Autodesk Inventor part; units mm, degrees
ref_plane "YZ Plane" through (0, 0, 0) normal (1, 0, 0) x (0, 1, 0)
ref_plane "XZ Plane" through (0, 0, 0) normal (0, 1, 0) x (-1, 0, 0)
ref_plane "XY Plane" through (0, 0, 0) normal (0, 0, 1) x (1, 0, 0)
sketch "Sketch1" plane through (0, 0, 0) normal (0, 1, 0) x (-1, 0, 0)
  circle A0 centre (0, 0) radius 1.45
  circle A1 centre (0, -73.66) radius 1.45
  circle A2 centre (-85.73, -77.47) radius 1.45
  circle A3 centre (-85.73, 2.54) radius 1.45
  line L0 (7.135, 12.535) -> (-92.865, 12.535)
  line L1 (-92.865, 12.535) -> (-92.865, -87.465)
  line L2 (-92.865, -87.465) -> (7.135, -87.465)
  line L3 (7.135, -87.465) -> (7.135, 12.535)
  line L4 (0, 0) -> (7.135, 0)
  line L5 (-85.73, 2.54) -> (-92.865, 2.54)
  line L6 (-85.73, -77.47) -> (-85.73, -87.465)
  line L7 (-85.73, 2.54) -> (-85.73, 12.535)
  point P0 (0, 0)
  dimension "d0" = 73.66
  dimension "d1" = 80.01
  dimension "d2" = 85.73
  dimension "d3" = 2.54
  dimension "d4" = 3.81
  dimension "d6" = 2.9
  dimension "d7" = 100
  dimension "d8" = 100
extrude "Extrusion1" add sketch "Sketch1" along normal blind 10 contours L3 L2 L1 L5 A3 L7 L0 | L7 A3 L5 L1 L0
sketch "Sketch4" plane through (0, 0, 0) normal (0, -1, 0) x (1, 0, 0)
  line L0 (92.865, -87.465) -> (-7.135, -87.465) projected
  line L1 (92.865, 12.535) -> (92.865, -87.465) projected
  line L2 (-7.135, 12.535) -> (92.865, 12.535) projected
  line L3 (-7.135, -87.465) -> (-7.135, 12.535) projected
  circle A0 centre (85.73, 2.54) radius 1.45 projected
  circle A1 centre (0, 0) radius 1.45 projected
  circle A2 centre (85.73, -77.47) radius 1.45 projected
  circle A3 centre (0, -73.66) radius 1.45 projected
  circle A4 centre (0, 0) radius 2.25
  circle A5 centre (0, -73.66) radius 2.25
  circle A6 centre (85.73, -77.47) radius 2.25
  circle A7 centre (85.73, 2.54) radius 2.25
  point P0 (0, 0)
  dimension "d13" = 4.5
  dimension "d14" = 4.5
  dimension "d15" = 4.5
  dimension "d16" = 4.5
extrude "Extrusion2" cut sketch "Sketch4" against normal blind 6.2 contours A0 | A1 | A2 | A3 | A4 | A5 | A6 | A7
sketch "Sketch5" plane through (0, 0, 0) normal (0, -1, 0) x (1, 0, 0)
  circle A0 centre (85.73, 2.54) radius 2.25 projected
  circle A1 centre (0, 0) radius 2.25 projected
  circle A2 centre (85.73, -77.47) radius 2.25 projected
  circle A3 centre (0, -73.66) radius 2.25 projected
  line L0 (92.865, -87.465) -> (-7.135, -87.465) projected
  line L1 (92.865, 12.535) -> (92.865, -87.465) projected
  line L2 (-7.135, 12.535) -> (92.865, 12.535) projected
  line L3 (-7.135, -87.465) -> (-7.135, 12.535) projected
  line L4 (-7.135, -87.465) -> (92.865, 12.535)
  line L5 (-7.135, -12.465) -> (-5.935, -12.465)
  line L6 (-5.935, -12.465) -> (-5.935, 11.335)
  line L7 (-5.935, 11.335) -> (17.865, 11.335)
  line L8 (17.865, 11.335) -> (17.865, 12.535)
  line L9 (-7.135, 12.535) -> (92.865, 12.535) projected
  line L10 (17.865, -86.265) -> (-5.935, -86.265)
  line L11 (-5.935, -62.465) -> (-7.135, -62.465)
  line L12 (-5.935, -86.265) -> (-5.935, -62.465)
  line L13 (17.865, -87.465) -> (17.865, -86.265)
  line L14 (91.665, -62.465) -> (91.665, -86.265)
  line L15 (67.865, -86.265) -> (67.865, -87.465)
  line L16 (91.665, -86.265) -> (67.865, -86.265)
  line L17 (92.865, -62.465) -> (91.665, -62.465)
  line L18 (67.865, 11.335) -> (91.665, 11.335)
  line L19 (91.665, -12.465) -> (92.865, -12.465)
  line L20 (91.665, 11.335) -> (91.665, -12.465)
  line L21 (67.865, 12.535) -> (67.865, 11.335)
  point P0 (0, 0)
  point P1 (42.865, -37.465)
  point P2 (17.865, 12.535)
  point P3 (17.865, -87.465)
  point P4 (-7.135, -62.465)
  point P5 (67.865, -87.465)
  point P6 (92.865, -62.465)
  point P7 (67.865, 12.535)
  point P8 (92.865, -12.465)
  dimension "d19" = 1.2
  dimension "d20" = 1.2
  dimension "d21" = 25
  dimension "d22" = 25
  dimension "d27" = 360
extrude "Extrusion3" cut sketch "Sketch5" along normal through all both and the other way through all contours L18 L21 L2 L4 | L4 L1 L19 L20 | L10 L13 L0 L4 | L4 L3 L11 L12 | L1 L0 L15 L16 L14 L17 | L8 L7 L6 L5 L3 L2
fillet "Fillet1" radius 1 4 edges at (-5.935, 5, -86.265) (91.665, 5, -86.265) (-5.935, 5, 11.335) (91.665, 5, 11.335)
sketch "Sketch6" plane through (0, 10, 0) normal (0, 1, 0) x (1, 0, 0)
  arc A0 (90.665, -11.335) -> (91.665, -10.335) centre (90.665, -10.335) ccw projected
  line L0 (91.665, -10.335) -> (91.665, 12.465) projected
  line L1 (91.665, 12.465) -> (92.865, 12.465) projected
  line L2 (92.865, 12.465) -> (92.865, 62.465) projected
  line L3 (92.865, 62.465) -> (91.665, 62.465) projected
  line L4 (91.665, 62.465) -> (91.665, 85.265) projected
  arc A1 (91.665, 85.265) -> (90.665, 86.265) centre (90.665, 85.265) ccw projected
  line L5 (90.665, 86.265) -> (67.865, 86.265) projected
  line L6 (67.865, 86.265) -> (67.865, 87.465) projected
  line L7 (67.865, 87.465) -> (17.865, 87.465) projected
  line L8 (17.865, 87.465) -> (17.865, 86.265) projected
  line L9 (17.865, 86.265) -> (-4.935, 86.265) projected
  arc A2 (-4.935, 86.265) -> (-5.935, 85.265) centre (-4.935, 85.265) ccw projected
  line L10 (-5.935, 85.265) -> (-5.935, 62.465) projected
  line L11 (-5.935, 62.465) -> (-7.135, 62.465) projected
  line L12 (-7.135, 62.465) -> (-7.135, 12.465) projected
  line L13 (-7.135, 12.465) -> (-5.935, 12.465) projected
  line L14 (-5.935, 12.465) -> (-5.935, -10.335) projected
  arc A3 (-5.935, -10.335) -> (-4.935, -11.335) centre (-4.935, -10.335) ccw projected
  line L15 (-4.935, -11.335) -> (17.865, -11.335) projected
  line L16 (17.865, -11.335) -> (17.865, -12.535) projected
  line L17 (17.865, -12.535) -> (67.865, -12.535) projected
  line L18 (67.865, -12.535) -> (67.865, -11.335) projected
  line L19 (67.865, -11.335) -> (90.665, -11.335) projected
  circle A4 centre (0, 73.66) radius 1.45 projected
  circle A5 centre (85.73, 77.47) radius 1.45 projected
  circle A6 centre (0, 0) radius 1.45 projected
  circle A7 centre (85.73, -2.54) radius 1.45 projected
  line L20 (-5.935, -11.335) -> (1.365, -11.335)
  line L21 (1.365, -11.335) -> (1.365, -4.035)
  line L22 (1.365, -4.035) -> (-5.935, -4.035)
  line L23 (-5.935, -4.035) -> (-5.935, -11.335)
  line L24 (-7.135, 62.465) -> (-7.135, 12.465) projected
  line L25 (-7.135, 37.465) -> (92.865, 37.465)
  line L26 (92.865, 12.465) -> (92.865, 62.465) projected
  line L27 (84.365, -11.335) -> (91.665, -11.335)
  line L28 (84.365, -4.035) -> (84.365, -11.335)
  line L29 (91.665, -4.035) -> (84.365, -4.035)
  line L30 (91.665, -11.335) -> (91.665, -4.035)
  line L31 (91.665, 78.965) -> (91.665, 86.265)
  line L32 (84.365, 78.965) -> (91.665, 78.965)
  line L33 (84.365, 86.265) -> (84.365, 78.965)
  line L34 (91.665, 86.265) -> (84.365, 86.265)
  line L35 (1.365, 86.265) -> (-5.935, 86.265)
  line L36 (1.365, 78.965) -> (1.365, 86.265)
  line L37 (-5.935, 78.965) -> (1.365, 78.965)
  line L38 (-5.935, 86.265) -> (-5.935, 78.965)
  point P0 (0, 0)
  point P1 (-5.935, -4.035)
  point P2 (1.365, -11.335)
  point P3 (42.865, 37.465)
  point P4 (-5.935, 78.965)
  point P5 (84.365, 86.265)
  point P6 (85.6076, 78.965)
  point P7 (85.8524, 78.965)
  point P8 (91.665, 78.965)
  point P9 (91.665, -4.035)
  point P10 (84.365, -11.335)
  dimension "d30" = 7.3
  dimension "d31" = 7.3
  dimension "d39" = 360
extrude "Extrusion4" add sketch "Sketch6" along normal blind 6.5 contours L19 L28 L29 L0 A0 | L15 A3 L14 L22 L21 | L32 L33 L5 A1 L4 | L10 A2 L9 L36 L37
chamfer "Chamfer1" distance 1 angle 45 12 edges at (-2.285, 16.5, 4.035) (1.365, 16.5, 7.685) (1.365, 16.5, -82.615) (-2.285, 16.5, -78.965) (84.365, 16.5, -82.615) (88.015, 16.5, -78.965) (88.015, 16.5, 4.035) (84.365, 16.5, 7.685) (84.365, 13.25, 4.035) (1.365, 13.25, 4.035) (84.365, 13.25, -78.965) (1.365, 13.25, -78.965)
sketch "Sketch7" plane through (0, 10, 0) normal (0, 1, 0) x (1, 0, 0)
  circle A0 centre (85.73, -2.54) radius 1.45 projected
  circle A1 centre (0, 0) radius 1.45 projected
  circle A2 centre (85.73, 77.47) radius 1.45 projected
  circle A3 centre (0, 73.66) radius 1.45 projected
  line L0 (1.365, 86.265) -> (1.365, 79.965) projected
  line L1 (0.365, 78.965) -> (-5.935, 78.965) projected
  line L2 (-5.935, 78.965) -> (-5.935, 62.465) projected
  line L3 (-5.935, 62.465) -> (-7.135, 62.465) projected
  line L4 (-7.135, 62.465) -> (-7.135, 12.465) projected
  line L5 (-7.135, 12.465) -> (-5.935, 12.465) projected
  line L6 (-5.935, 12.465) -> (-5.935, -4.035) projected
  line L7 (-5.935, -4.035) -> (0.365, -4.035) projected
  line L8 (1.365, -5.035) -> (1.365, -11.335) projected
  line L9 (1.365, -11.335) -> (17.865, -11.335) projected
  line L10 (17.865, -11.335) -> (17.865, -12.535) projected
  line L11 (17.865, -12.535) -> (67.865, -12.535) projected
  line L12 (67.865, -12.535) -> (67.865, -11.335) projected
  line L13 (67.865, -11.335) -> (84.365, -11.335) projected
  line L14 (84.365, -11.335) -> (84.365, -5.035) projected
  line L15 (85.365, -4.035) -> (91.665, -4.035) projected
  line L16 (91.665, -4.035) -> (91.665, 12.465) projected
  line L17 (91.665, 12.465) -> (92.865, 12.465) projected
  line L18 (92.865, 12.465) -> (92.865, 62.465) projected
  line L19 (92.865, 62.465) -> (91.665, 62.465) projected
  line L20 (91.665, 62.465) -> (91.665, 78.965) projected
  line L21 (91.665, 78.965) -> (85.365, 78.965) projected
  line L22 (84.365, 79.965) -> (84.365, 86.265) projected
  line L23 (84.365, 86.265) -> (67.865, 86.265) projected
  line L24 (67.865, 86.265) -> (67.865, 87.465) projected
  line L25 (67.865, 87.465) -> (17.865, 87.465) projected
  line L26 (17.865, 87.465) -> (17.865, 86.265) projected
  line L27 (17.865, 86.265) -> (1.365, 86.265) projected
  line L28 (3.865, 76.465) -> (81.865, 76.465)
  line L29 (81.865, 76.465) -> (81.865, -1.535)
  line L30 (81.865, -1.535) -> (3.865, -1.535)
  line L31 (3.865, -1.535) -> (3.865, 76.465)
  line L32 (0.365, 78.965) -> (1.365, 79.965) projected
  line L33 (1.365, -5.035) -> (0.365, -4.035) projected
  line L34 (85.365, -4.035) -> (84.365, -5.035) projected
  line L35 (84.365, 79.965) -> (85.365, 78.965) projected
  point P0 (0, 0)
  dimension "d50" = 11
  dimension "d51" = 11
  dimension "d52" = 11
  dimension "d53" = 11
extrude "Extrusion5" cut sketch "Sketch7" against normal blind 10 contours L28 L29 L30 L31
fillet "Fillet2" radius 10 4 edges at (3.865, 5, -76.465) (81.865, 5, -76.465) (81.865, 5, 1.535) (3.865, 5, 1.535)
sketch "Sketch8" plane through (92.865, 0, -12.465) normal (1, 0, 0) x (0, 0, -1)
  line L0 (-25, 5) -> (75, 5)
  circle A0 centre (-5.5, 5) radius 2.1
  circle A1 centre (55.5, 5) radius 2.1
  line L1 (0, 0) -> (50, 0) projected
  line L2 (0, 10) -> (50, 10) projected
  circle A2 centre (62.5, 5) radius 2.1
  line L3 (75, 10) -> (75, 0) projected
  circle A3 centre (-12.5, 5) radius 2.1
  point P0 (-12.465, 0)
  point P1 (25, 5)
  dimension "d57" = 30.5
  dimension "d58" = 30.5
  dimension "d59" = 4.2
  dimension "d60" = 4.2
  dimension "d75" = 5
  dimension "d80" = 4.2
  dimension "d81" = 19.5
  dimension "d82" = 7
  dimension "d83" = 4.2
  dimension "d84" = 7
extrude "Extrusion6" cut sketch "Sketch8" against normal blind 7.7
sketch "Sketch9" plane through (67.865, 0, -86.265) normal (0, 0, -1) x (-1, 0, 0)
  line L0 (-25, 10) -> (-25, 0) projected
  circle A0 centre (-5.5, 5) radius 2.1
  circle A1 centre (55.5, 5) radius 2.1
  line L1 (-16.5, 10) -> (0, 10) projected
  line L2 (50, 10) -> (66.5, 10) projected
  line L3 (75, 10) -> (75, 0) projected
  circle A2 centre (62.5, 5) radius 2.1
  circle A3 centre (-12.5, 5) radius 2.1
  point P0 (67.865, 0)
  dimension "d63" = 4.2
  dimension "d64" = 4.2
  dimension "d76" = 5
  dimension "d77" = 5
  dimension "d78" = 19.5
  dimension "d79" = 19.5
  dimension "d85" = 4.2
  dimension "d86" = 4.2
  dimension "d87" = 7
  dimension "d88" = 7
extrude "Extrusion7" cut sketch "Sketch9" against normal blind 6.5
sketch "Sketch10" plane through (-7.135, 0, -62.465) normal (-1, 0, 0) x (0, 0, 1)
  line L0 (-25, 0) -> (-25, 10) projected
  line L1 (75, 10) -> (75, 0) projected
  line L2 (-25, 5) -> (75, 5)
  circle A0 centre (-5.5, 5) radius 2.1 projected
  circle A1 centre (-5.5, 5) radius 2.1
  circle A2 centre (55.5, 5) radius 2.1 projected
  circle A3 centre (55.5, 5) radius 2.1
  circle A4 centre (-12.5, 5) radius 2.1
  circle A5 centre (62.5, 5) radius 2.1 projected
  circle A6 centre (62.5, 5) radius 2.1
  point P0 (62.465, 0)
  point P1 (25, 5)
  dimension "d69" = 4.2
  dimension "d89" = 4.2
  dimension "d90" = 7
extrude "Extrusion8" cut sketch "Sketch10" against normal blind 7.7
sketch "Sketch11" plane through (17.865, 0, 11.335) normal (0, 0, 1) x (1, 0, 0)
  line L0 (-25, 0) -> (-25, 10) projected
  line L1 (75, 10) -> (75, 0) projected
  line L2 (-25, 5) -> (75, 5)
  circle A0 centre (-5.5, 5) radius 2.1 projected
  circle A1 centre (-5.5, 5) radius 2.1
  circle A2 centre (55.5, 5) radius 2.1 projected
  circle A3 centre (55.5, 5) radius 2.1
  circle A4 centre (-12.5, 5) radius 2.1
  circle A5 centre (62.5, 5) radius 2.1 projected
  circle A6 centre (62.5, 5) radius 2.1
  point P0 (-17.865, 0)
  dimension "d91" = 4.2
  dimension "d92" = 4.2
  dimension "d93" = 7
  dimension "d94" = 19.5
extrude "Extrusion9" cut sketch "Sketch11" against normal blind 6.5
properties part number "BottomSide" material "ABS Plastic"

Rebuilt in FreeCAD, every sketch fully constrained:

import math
import FreeCAD as App
import Part
import Sketcher
from FreeCAD import Vector


def edges_at(feature, points):
    """Names of the edges that pass closest to the given points."""
    edges = feature.Shape.Edges
    near = lambda p: min(range(len(edges)), key=lambda i: edges[i].distToShape(Part.Vertex(*p))[0])
    return sorted({f"Edge{near(p) + 1}" for p in points})

doc = App.newDocument("Part")
body = doc.addObject("PartDesign::Body", "Body")

# Sketch on XZ plane
sketch1 = body.newObject("Sketcher::SketchObject", "Sketch")
sketch1.AttachmentSupport = (doc.getObject("XZ_Plane"), [""])
sketch1.MapMode = "FlatFace"
sketch1.addGeometry(Part.LineSegment(Vector(-7.135, -87.465, 0), Vector(-7.135, 0, 0)), False)
sketch1.addGeometry(Part.LineSegment(Vector(-7.135, 0, 0), Vector(-7.135, 12.535, 0)), False)
sketch1.addGeometry(Part.LineSegment(Vector(-7.135, 12.535, 0), Vector(92.865, 12.535, 0)), False)
sketch1.addGeometry(Part.LineSegment(Vector(92.865, 12.535, 0), Vector(92.865, -87.465, 0)), False)
sketch1.addGeometry(Part.LineSegment(Vector(92.865, -87.465, 0), Vector(85.73, -87.465, 0)), False)
sketch1.addGeometry(Part.LineSegment(Vector(85.73, -87.465, 0), Vector(-7.135, -87.465, 0)), False)
sketch1.addGeometry(Part.Circle(Vector(85.73, 2.54, 0), Vector(0, 0, 1), 1.45), False)
sketch1.addGeometry(Part.Circle(Vector(85.73, -77.47, 0), Vector(0, 0, 1), 1.45), False)
sketch1.addGeometry(Part.Circle(Vector(0, -73.66, 0), Vector(0, 0, 1), 1.45), False)
sketch1.addGeometry(Part.Circle(Vector(0, 0, 0), Vector(0, 0, 1), 1.45), False)
sketch1.addConstraint(Sketcher.Constraint("Coincident", 0, 2, 1, 1))
sketch1.addConstraint(Sketcher.Constraint("Coincident", 1, 2, 2, 1))
sketch1.addConstraint(Sketcher.Constraint("Coincident", 2, 2, 3, 1))
sketch1.addConstraint(Sketcher.Constraint("Coincident", 3, 2, 4, 1))
sketch1.addConstraint(Sketcher.Constraint("Coincident", 4, 2, 5, 1))
sketch1.addConstraint(Sketcher.Constraint("Coincident", 5, 2, 0, 1))
sketch1.addConstraint(Sketcher.Constraint("Vertical", 0))
sketch1.addConstraint(Sketcher.Constraint("Vertical", 1))
sketch1.addConstraint(Sketcher.Constraint("Horizontal", 2))
sketch1.addConstraint(Sketcher.Constraint("Vertical", 3))
sketch1.addConstraint(Sketcher.Constraint("Horizontal", 4))
sketch1.addConstraint(Sketcher.Constraint("Horizontal", 5))
sketch1.addConstraint(Sketcher.Constraint("Coincident", 9, 3, -1, 1))
sketch1.addConstraint(Sketcher.Constraint("Equal", 6, 7))
sketch1.addConstraint(Sketcher.Constraint("Equal", 7, 8))
sketch1.addConstraint(Sketcher.Constraint("Equal", 8, 9))
sketch1.addConstraint(Sketcher.Constraint("PointOnObject", 8, 3, -2))
sketch1.addConstraint(Sketcher.Constraint("PointOnObject", 0, 2, -1))
sketch1.addConstraint(Sketcher.Constraint("Vertical", 6, 3, 7, 3))
sketch1.addConstraint(Sketcher.Constraint("Vertical", 7, 3, 4, 2))
sketch1.addConstraint(Sketcher.Constraint("Equal", 2, 3))
sketch1.addConstraint(Sketcher.Constraint("Diameter", 6, 2.9))
sketch1.addConstraint(Sketcher.Constraint("DistanceX", 2, 1, 2, 2, 100.0))
sketch1.addConstraint(Sketcher.Constraint("DistanceX", -1, 1, 6, 3, 85.73))
sketch1.addConstraint(Sketcher.Constraint("DistanceY", -1, 1, 6, 3, 2.54))
sketch1.addConstraint(Sketcher.Constraint("DistanceY", 8, 3, -1, 1, 73.66))
sketch1.addConstraint(Sketcher.Constraint("DistanceY", 7, 3, 6, 3, 80.01))
sketch1.addConstraint(Sketcher.Constraint("DistanceX", 4, 2, 4, 1, 7.135))
sketch1.addConstraint(Sketcher.Constraint("DistanceY", 0, 1, 0, 2, 87.465))
pad1 = body.newObject("PartDesign::Pad", "Pad")
pad1.Profile = sketch1
pad1.Length = 10
pad1.Reversed = True

# Sketch on XZ plane
sketch2 = body.newObject("Sketcher::SketchObject", "Sketch001")
sketch2.AttachmentSupport = (doc.getObject("XZ_Plane"), [""])
sketch2.MapMode = "FlatFace"
sketch2.addGeometry(Part.Circle(Vector(85.73, 2.54, 0), Vector(0, 0, 1), 2.25), False)
sketch2.addGeometry(Part.Circle(Vector(0, 0, 0), Vector(0, 0, 1), 2.25), False)
sketch2.addGeometry(Part.Circle(Vector(85.73, -77.47, 0), Vector(0, 0, 1), 2.25), False)
sketch2.addGeometry(Part.Circle(Vector(0, -73.66, 0), Vector(0, 0, 1), 2.25), False)
sketch2.addConstraint(Sketcher.Constraint("Coincident", 1, 3, -1, 1))
sketch2.addConstraint(Sketcher.Constraint("Equal", 0, 1))
sketch2.addConstraint(Sketcher.Constraint("Equal", 1, 2))
sketch2.addConstraint(Sketcher.Constraint("Equal", 2, 3))
sketch2.addConstraint(Sketcher.Constraint("PointOnObject", 3, 3, -2))
sketch2.addConstraint(Sketcher.Constraint("Vertical", 0, 3, 2, 3))
sketch2.addConstraint(Sketcher.Constraint("Diameter", 0, 4.5))
sketch2.addConstraint(Sketcher.Constraint("DistanceY", 3, 3, 0, 3, 76.2))
sketch2.addConstraint(Sketcher.Constraint("DistanceX", -1, 1, 0, 3, 85.73))
sketch2.addConstraint(Sketcher.Constraint("DistanceY", -1, 1, 0, 3, 2.54))
sketch2.addConstraint(Sketcher.Constraint("DistanceY", 2, 3, -1, 1, 77.47))
pocket1 = body.newObject("PartDesign::Pocket", "Pocket")
pocket1.Profile = sketch2
pocket1.Length = 6.2

# Sketch on XZ plane
sketch3 = body.newObject("Sketcher::SketchObject", "Sketch002")
sketch3.AttachmentSupport = (doc.getObject("XZ_Plane"), [""])
sketch3.MapMode = "FlatFace"
sketch3.addGeometry(Part.LineSegment(Vector(67.865, 11.335, 0), Vector(91.665, 11.335, 0)), False)
sketch3.addGeometry(Part.LineSegment(Vector(91.665, 11.335, 0), Vector(91.665, -12.465, 0)), False)
sketch3.addGeometry(Part.LineSegment(Vector(91.665, -12.465, 0), Vector(92.865, -12.465, 0)), False)
sketch3.addGeometry(Part.LineSegment(Vector(92.865, -12.465, 0), Vector(92.865, 12.535, 0)), False)
sketch3.addGeometry(Part.LineSegment(Vector(92.865, 12.535, 0), Vector(67.865, 12.535, 0)), False)
sketch3.addGeometry(Part.LineSegment(Vector(67.865, 12.535, 0), Vector(67.865, 11.335, 0)), False)
sketch3.addGeometry(Part.LineSegment(Vector(17.865, -86.265, 0), Vector(-5.935, -86.265, 0)), False)
sketch3.addGeometry(Part.LineSegment(Vector(-5.935, -86.265, 0), Vector(-5.935, -62.465, 0)), False)
sketch3.addGeometry(Part.LineSegment(Vector(-5.935, -62.465, 0), Vector(-7.135, -62.465, 0)), False)
sketch3.addGeometry(Part.LineSegment(Vector(-7.135, -62.465, 0), Vector(-7.135, -87.465, 0)), False)
sketch3.addGeometry(Part.LineSegment(Vector(-7.135, -87.465, 0), Vector(17.865, -87.465, 0)), False)
sketch3.addGeometry(Part.LineSegment(Vector(17.865, -87.465, 0), Vector(17.865, -86.265, 0)), False)
sketch3.addGeometry(Part.LineSegment(Vector(92.865, -87.465, 0), Vector(92.865, -62.465, 0)), False)
sketch3.addGeometry(Part.LineSegment(Vector(92.865, -62.465, 0), Vector(91.665, -62.465, 0)), False)
sketch3.addGeometry(Part.LineSegment(Vector(91.665, -62.465, 0), Vector(91.665, -86.265, 0)), False)
sketch3.addGeometry(Part.LineSegment(Vector(91.665, -86.265, 0), Vector(67.865, -86.265, 0)), False)
sketch3.addGeometry(Part.LineSegment(Vector(67.865, -86.265, 0), Vector(67.865, -87.465, 0)), False)
sketch3.addGeometry(Part.LineSegment(Vector(67.865, -87.465, 0), Vector(92.865, -87.465, 0)), False)
sketch3.addGeometry(Part.LineSegment(Vector(17.865, 11.335, 0), Vector(17.865, 12.535, 0)), False)
sketch3.addGeometry(Part.LineSegment(Vector(17.865, 12.535, 0), Vector(-7.135, 12.535, 0)), False)
sketch3.addGeometry(Part.LineSegment(Vector(-7.135, 12.535, 0), Vector(-7.135, -12.465, 0)), False)
sketch3.addGeometry(Part.LineSegment(Vector(-7.135, -12.465, 0), Vector(-5.935, -12.465, 0)), False)
sketch3.addGeometry(Part.LineSegment(Vector(-5.935, -12.465, 0), Vector(-5.935, 11.335, 0)), False)
sketch3.addGeometry(Part.LineSegment(Vector(-5.935, 11.335, 0), Vector(17.865, 11.335, 0)), False)
sketch3.addConstraint(Sketcher.Constraint("Coincident", 0, 2, 1, 1))
sketch3.addConstraint(Sketcher.Constraint("Coincident", 1, 2, 2, 1))
sketch3.addConstraint(Sketcher.Constraint("Coincident", 2, 2, 3, 1))
sketch3.addConstraint(Sketcher.Constraint("Coincident", 3, 2, 4, 1))
sketch3.addConstraint(Sketcher.Constraint("Coincident", 4, 2, 5, 1))
sketch3.addConstraint(Sketcher.Constraint("Coincident", 5, 2, 0, 1))
sketch3.addConstraint(Sketcher.Constraint("Coincident", 6, 2, 7, 1))
sketch3.addConstraint(Sketcher.Constraint("Coincident", 7, 2, 8, 1))
sketch3.addConstraint(Sketcher.Constraint("Coincident", 8, 2, 9, 1))
sketch3.addConstraint(Sketcher.Constraint("Coincident", 9, 2, 10, 1))
sketch3.addConstraint(Sketcher.Constraint("Coincident", 10, 2, 11, 1))
sketch3.addConstraint(Sketcher.Constraint("Coincident", 11, 2, 6, 1))
sketch3.addConstraint(Sketcher.Constraint("Coincident", 12, 2, 13, 1))
sketch3.addConstraint(Sketcher.Constraint("Coincident", 13, 2, 14, 1))
sketch3.addConstraint(Sketcher.Constraint("Coincident", 14, 2, 15, 1))
sketch3.addConstraint(Sketcher.Constraint("Coincident", 15, 2, 16, 1))
sketch3.addConstraint(Sketcher.Constraint("Coincident", 16, 2, 17, 1))
sketch3.addConstraint(Sketcher.Constraint("Coincident", 17, 2, 12, 1))
sketch3.addConstraint(Sketcher.Constraint("Coincident", 18, 2, 19, 1))
sketch3.addConstraint(Sketcher.Constraint("Coincident", 19, 2, 20, 1))
sketch3.addConstraint(Sketcher.Constraint("Coincident", 20, 2, 21, 1))
sketch3.addConstraint(Sketcher.Constraint("Coincident", 21, 2, 22, 1))
sketch3.addConstraint(Sketcher.Constraint("Coincident", 22, 2, 23, 1))
sketch3.addConstraint(Sketcher.Constraint("Coincident", 23, 2, 18, 1))
sketch3.addConstraint(Sketcher.Constraint("Horizontal", 0))
sketch3.addConstraint(Sketcher.Constraint("Vertical", 1))
sketch3.addConstraint(Sketcher.Constraint("Horizontal", 2))
sketch3.addConstraint(Sketcher.Constraint("Vertical", 3))
sketch3.addConstraint(Sketcher.Constraint("Horizontal", 4))
sketch3.addConstraint(Sketcher.Constraint("Vertical", 5))
sketch3.addConstraint(Sketcher.Constraint("Horizontal", 6))
sketch3.addConstraint(Sketcher.Constraint("Vertical", 7))
sketch3.addConstraint(Sketcher.Constraint("Horizontal", 8))
sketch3.addConstraint(Sketcher.Constraint("Vertical", 9))
sketch3.addConstraint(Sketcher.Constraint("Horizontal", 10))
sketch3.addConstraint(Sketcher.Constraint("Vertical", 11))
sketch3.addConstraint(Sketcher.Constraint("Vertical", 12))
sketch3.addConstraint(Sketcher.Constraint("Horizontal", 13))
sketch3.addConstraint(Sketcher.Constraint("Vertical", 14))
sketch3.addConstraint(Sketcher.Constraint("Horizontal", 15))
sketch3.addConstraint(Sketcher.Constraint("Vertical", 16))
sketch3.addConstraint(Sketcher.Constraint("Horizontal", 17))
sketch3.addConstraint(Sketcher.Constraint("Vertical", 18))
sketch3.addConstraint(Sketcher.Constraint("Horizontal", 19))
sketch3.addConstraint(Sketcher.Constraint("Vertical", 20))
sketch3.addConstraint(Sketcher.Constraint("Horizontal", 21))
sketch3.addConstraint(Sketcher.Constraint("Vertical", 22))
sketch3.addConstraint(Sketcher.Constraint("Horizontal", 23))
sketch3.addConstraint(Sketcher.Constraint("Horizontal", 8, 2, 12, 2))
sketch3.addConstraint(Sketcher.Constraint("Horizontal", 11, 2, 14, 2))
sketch3.addConstraint(Sketcher.Constraint("Horizontal", 10, 2, 16, 2))
sketch3.addConstraint(Sketcher.Constraint("Horizontal", 4, 2, 18, 2))
sketch3.addConstraint(Sketcher.Constraint("Horizontal", 2, 2, 20, 2))
sketch3.addConstraint(Sketcher.Constraint("Horizontal", 5, 2, 22, 2))
sketch3.addConstraint(Sketcher.Constraint("Vertical", 3, 2, 12, 2))
sketch3.addConstraint(Sketcher.Constraint("Vertical", 1, 2, 13, 2))
sketch3.addConstraint(Sketcher.Constraint("Vertical", 5, 2, 15, 2))
sketch3.addConstraint(Sketcher.Constraint("Vertical", 11, 2, 18, 2))
sketch3.addConstraint(Sketcher.Constraint("Vertical", 9, 2, 19, 2))
sketch3.addConstraint(Sketcher.Constraint("Vertical", 7, 2, 21, 2))
sketch3.addConstraint(Sketcher.Constraint("Equal", 0, 6))
sketch3.addConstraint(Sketcher.Constraint("Equal", 2, 8))
sketch3.addConstraint(Sketcher.Constraint("Equal", 23, 1))
sketch3.addConstraint(Sketcher.Constraint("Equal", 19, 3))
sketch3.addConstraint(Sketcher.Constraint("Equal", 1, 7))
sketch3.addConstraint(Sketcher.Constraint("Equal", 3, 9))
sketch3.addConstraint(Sketcher.Constraint("DistanceX", 4, 2, 4, 1, 25.0))
sketch3.addConstraint(Sketcher.Constraint("DistanceX", 2, 1, 2, 2, 1.2))
sketch3.addConstraint(Sketcher.Constraint("DistanceY", 7, 2, 4, 2, 75.0))
sketch3.addConstraint(Sketcher.Constraint("DistanceX", 8, 2, 5, 2, 75.0))
sketch3.addConstraint(Sketcher.Constraint("DistanceX", -1, 1, 0, 2, 91.665))
sketch3.addConstraint(Sketcher.Constraint("DistanceY", -1, 1, 0, 2, 11.335))
pocket2 = body.newObject("PartDesign::Pocket", "Pocket001")
pocket2.Profile = sketch3
pocket2.Type = "ThroughAll"
pocket2.Midplane = True
doc.recompute()

fillet = body.newObject("PartDesign::Fillet", "Fillet")
fillet.Base = (pocket2, edges_at(pocket2, [
    (-5.935, 5, -86.265),
    (91.665, 5, -86.265),
    (-5.935, 5, 11.335),
    (91.665, 5, 11.335),
]))
fillet.Radius = 1

# Sketch on XZ plane
sketch4 = body.newObject("Sketcher::SketchObject", "Sketch003")
sketch4.AttachmentSupport = (doc.getObject("XZ_Plane"), [""])
sketch4.MapMode = "FlatFace"
sketch4.AttachmentOffset = App.Placement(Vector(0, 0, -10), App.Rotation())
sketch4.addGeometry(Part.LineSegment(Vector(84.365, 11.335, 0), Vector(90.665, 11.335, 0)), False)
sketch4.addGeometry(Part.ArcOfCircle(Part.Circle(Vector(90.665, 10.335, 0), Vector(0, 0, 1), 1), math.radians(0), math.radians(90)), False)
sketch4.addGeometry(Part.LineSegment(Vector(91.665, 10.335, 0), Vector(91.665, 4.035, 0)), False)
sketch4.addGeometry(Part.LineSegment(Vector(91.665, 4.035, 0), Vector(84.365, 4.035, 0)), False)
sketch4.addGeometry(Part.LineSegment(Vector(84.365, 4.035, 0), Vector(84.365, 11.335, 0)), False)
sketch4.addGeometry(Part.LineSegment(Vector(-4.935, 11.335, 0), Vector(1.365, 11.335, 0)), False)
sketch4.addGeometry(Part.LineSegment(Vector(1.365, 11.335, 0), Vector(1.365, 4.035, 0)), False)
sketch4.addGeometry(Part.LineSegment(Vector(1.365, 4.035, 0), Vector(-5.935, 4.035, 0)), False)
sketch4.addGeometry(Part.LineSegment(Vector(-5.935, 4.035, 0), Vector(-5.935, 10.335, 0)), False)
sketch4.addGeometry(Part.ArcOfCircle(Part.Circle(Vector(-4.935, 10.335, 0), Vector(0, 0, 1), 1), math.radians(90), math.radians(180)), False)
sketch4.addGeometry(Part.LineSegment(Vector(84.365, -78.965, 0), Vector(91.665, -78.965, 0)), False)
sketch4.addGeometry(Part.LineSegment(Vector(91.665, -78.965, 0), Vector(91.665, -85.265, 0)), False)
sketch4.addGeometry(Part.ArcOfCircle(Part.Circle(Vector(90.665, -85.265, 0), Vector(0, 0, 1), 1), math.radians(-90), math.radians(0)), False)
sketch4.addGeometry(Part.LineSegment(Vector(90.665, -86.265, 0), Vector(84.365, -86.265, 0)), False)
sketch4.addGeometry(Part.LineSegment(Vector(84.365, -86.265, 0), Vector(84.365, -78.965, 0)), False)
sketch4.addGeometry(Part.LineSegment(Vector(-5.935, -85.265, 0), Vector(-5.935, -78.965, 0)), False)
sketch4.addGeometry(Part.LineSegment(Vector(-5.935, -78.965, 0), Vector(1.365, -78.965, 0)), False)
sketch4.addGeometry(Part.LineSegment(Vector(1.365, -78.965, 0), Vector(1.365, -86.265, 0)), False)
sketch4.addGeometry(Part.LineSegment(Vector(1.365, -86.265, 0), Vector(-4.935, -86.265, 0)), False)
sketch4.addGeometry(Part.ArcOfCircle(Part.Circle(Vector(-4.935, -85.265, 0), Vector(0, 0, 1), 1), math.radians(180), math.radians(270)), False)
sketch4.addConstraint(Sketcher.Constraint("Tangent", 0, 2, 1, 2))
sketch4.addConstraint(Sketcher.Constraint("Tangent", 1, 1, 2, 1))
sketch4.addConstraint(Sketcher.Constraint("Coincident", 2, 2, 3, 1))
sketch4.addConstraint(Sketcher.Constraint("Coincident", 3, 2, 4, 1))
sketch4.addConstraint(Sketcher.Constraint("Coincident", 4, 2, 0, 1))
sketch4.addConstraint(Sketcher.Constraint("Coincident", 5, 2, 6, 1))
sketch4.addConstraint(Sketcher.Constraint("Coincident", 6, 2, 7, 1))
sketch4.addConstraint(Sketcher.Constraint("Coincident", 7, 2, 8, 1))
sketch4.addConstraint(Sketcher.Constraint("Tangent", 8, 2, 9, 2))
sketch4.addConstraint(Sketcher.Constraint("Tangent", 9, 1, 5, 1))
sketch4.addConstraint(Sketcher.Constraint("Coincident", 10, 2, 11, 1))
sketch4.addConstraint(Sketcher.Constraint("Tangent", 11, 2, 12, 2))
sketch4.addConstraint(Sketcher.Constraint("Tangent", 12, 1, 13, 1))
sketch4.addConstraint(Sketcher.Constraint("Coincident", 13, 2, 14, 1))
sketch4.addConstraint(Sketcher.Constraint("Coincident", 14, 2, 10, 1))
sketch4.addConstraint(Sketcher.Constraint("Coincident", 15, 2, 16, 1))
sketch4.addConstraint(Sketcher.Constraint("Coincident", 16, 2, 17, 1))
sketch4.addConstraint(Sketcher.Constraint("Coincident", 17, 2, 18, 1))
sketch4.addConstraint(Sketcher.Constraint("Tangent", 18, 2, 19, 2))
sketch4.addConstraint(Sketcher.Constraint("Tangent", 19, 1, 15, 1))
sketch4.addConstraint(Sketcher.Constraint("Horizontal", 0))
sketch4.addConstraint(Sketcher.Constraint("Vertical", 2))
sketch4.addConstraint(Sketcher.Constraint("Horizontal", 3))
sketch4.addConstraint(Sketcher.Constraint("Vertical", 4))
sketch4.addConstraint(Sketcher.Constraint("Horizontal", 5))
sketch4.addConstraint(Sketcher.Constraint("Vertical", 6))
sketch4.addConstraint(Sketcher.Constraint("Horizontal", 7))
sketch4.addConstraint(Sketcher.Constraint("Vertical", 8))
sketch4.addConstraint(Sketcher.Constraint("Horizontal", 10))
sketch4.addConstraint(Sketcher.Constraint("Vertical", 11))
sketch4.addConstraint(Sketcher.Constraint("Horizontal", 13))
sketch4.addConstraint(Sketcher.Constraint("Vertical", 14))
sketch4.addConstraint(Sketcher.Constraint("Vertical", 15))
sketch4.addConstraint(Sketcher.Constraint("Horizontal", 16))
sketch4.addConstraint(Sketcher.Constraint("Vertical", 17))
sketch4.addConstraint(Sketcher.Constraint("Horizontal", 18))
sketch4.addConstraint(Sketcher.Constraint("Equal", 1, 9))
sketch4.addConstraint(Sketcher.Constraint("Equal", 9, 12))
sketch4.addConstraint(Sketcher.Constraint("Equal", 12, 19))
sketch4.addConstraint(Sketcher.Constraint("Horizontal", 1, 3, 9, 3))
sketch4.addConstraint(Sketcher.Constraint("Horizontal", 12, 3, 19, 3))
sketch4.addConstraint(Sketcher.Constraint("Horizontal", 3, 2, 6, 2))
sketch4.addConstraint(Sketcher.Constraint("Horizontal", 14, 2, 15, 2))
sketch4.addConstraint(Sketcher.Constraint("Vertical", 1, 3, 12, 3))
sketch4.addConstraint(Sketcher.Constraint("Vertical", 9, 3, 19, 3))
sketch4.addConstraint(Sketcher.Constraint("Vertical", 4, 2, 13, 2))
sketch4.addConstraint(Sketcher.Constraint("Vertical", 6, 2, 16, 2))
sketch4.addConstraint(Sketcher.Constraint("Equal", 0, 5))
sketch4.addConstraint(Sketcher.Constraint("Equal", 18, 2))
sketch4.addConstraint(Sketcher.Constraint("Equal", 8, 11))
sketch4.addConstraint(Sketcher.Constraint("DistanceX", 3, 2, 3, 1, 7.3))
sketch4.addConstraint(Sketcher.Constraint("Radius", 1, 1.0))
sketch4.addConstraint(Sketcher.Constraint("DistanceX", 5, 2, 4, 2, 83.0))
sketch4.addConstraint(Sketcher.Constraint("DistanceY", 10, 2, 2, 2, 83.0))
sketch4.addConstraint(Sketcher.Constraint("DistanceX", -1, 1, 1, 3, 90.665))
sketch4.addConstraint(Sketcher.Constraint("DistanceY", -1, 1, 1, 3, 10.335))
pad2 = body.newObject("PartDesign::Pad", "Pad001")
pad2.Profile = sketch4
pad2.Length = 6.5
pad2.Reversed = True
doc.recompute()

chamfer = body.newObject("PartDesign::Chamfer", "Chamfer")
chamfer.Base = (pad2, edges_at(pad2, [
    (-2.285, 16.5, 4.035),
    (1.365, 16.5, 7.685),
    (1.365, 16.5, -82.615),
    (-2.285, 16.5, -78.965),
    (84.365, 16.5, -82.615),
    (88.015, 16.5, -78.965),
    (88.015, 16.5, 4.035),
    (84.365, 16.5, 7.685),
    (84.365, 13.25, 4.035),
    (1.365, 13.25, 4.035),
    (84.365, 13.25, -78.965),
    (1.365, 13.25, -78.965),
]))
chamfer.Size = 1

# Sketch on XZ plane
sketch5 = body.newObject("Sketcher::SketchObject", "Sketch004")
sketch5.AttachmentSupport = (doc.getObject("XZ_Plane"), [""])
sketch5.MapMode = "FlatFace"
sketch5.AttachmentOffset = App.Placement(Vector(0, 0, -10), App.Rotation())
sketch5.addGeometry(Part.LineSegment(Vector(81.865, -76.465, 0), Vector(3.865, -76.465, 0)), False)
sketch5.addGeometry(Part.LineSegment(Vector(3.865, -76.465, 0), Vector(3.865, 1.535, 0)), False)
sketch5.addGeometry(Part.LineSegment(Vector(3.865, 1.535, 0), Vector(81.865, 1.535, 0)), False)
sketch5.addGeometry(Part.LineSegment(Vector(81.865, 1.535, 0), Vector(81.865, -76.465, 0)), False)
sketch5.addConstraint(Sketcher.Constraint("Coincident", 0, 2, 1, 1))
sketch5.addConstraint(Sketcher.Constraint("Coincident", 1, 2, 2, 1))
sketch5.addConstraint(Sketcher.Constraint("Coincident", 2, 2, 3, 1))
sketch5.addConstraint(Sketcher.Constraint("Coincident", 3, 2, 0, 1))
sketch5.addConstraint(Sketcher.Constraint("Horizontal", 0))
sketch5.addConstraint(Sketcher.Constraint("Vertical", 1))
sketch5.addConstraint(Sketcher.Constraint("Horizontal", 2))
sketch5.addConstraint(Sketcher.Constraint("Vertical", 3))
sketch5.addConstraint(Sketcher.Constraint("Equal", 2, 1))
sketch5.addConstraint(Sketcher.Constraint("DistanceX", 0, 2, 0, 1, 78.0))
sketch5.addConstraint(Sketcher.Constraint("DistanceX", -1, 1, 0, 2, 3.865))
sketch5.addConstraint(Sketcher.Constraint("DistanceY", 0, 2, -1, 1, 76.465))
pocket3 = body.newObject("PartDesign::Pocket", "Pocket002")
pocket3.Profile = sketch5
pocket3.Length = 10
pocket3.Reversed = True
doc.recompute()

fillet2 = body.newObject("PartDesign::Fillet", "Fillet001")
fillet2.Base = (pocket3, edges_at(pocket3, [
    (3.865, 5, -76.465),
    (81.865, 5, -76.465),
    (81.865, 5, 1.535),
    (3.865, 5, 1.535),
]))
fillet2.Radius = 10

# Sketch on YZ plane
sketch6 = body.newObject("Sketcher::SketchObject", "Sketch005")
sketch6.AttachmentSupport = (doc.getObject("YZ_Plane"), [""])
sketch6.MapMode = "FlatFace"
sketch6.AttachmentOffset = App.Placement(Vector(0, 0, 92.865), App.Rotation())
sketch6.addGeometry(Part.Circle(Vector(5, 0.035, 0), Vector(0, 0, 1), 2.1), False)
sketch6.addGeometry(Part.Circle(Vector(5, -74.965, 0), Vector(0, 0, 1), 2.1), False)
sketch6.addGeometry(Part.Circle(Vector(5, -67.965, 0), Vector(0, 0, 1), 2.1), False)
sketch6.addGeometry(Part.Circle(Vector(5, -6.965, 0), Vector(0, 0, 1), 2.1), False)
sketch6.addConstraint(Sketcher.Constraint("Equal", 0, 1))
sketch6.addConstraint(Sketcher.Constraint("Equal", 1, 2))
sketch6.addConstraint(Sketcher.Constraint("Equal", 2, 3))
sketch6.addConstraint(Sketcher.Constraint("Vertical", 0, 3, 1, 3))
sketch6.addConstraint(Sketcher.Constraint("Vertical", 1, 3, 2, 3))
sketch6.addConstraint(Sketcher.Constraint("Vertical", 2, 3, 3, 3))
sketch6.addConstraint(Sketcher.Constraint("Diameter", 0, 4.2))
sketch6.addConstraint(Sketcher.Constraint("DistanceX", -1, 1, 0, 3, 5.0))
sketch6.addConstraint(Sketcher.Constraint("DistanceY", 1, 3, 2, 3, 7.0))
sketch6.addConstraint(Sketcher.Constraint("DistanceY", 3, 3, 0, 3, 7.0))
sketch6.addConstraint(Sketcher.Constraint("DistanceY", 1, 3, 0, 3, 75.0))
sketch6.addConstraint(Sketcher.Constraint("DistanceY", -1, 1, 0, 3, 0.035))
pocket4 = body.newObject("PartDesign::Pocket", "Pocket003")
pocket4.Profile = sketch6
pocket4.Length = 7.7

# Sketch on XY plane
sketch7 = body.newObject("Sketcher::SketchObject", "Sketch006")
sketch7.AttachmentSupport = (doc.getObject("XY_Plane"), [""])
sketch7.MapMode = "FlatFace"
sketch7.AttachmentOffset = App.Placement(Vector(0, 0, -86.265), App.Rotation())
sketch7.addGeometry(Part.Circle(Vector(73.365, 5, 0), Vector(0, 0, 1), 2.1), False)
sketch7.addGeometry(Part.Circle(Vector(12.365, 5, 0), Vector(0, 0, 1), 2.1), False)
sketch7.addGeometry(Part.Circle(Vector(5.365, 5, 0), Vector(0, 0, 1), 2.1), False)
sketch7.addGeometry(Part.Circle(Vector(80.365, 5, 0), Vector(0, 0, 1), 2.1), False)
sketch7.addConstraint(Sketcher.Constraint("Equal", 0, 1))
sketch7.addConstraint(Sketcher.Constraint("Equal", 1, 2))
sketch7.addConstraint(Sketcher.Constraint("Equal", 2, 3))
sketch7.addConstraint(Sketcher.Constraint("Horizontal", 0, 3, 1, 3))
sketch7.addConstraint(Sketcher.Constraint("Horizontal", 1, 3, 2, 3))
sketch7.addConstraint(Sketcher.Constraint("Horizontal", 2, 3, 3, 3))
sketch7.addConstraint(Sketcher.Constraint("Diameter", 0, 4.2))
sketch7.addConstraint(Sketcher.Constraint("DistanceY", -1, 1, 0, 3, 5.0))
sketch7.addConstraint(Sketcher.Constraint("DistanceX", 2, 3, 1, 3, 7.0))
sketch7.addConstraint(Sketcher.Constraint("DistanceX", 0, 3, 3, 3, 7.0))
sketch7.addConstraint(Sketcher.Constraint("DistanceX", 1, 3, 0, 3, 61.0))
sketch7.addConstraint(Sketcher.Constraint("DistanceX", -1, 1, 0, 3, 73.365))
pocket5 = body.newObject("PartDesign::Pocket", "Pocket004")
pocket5.Profile = sketch7
pocket5.Length = 6.5
pocket5.Reversed = True

# Sketch on YZ plane
sketch8 = body.newObject("Sketcher::SketchObject", "Sketch007")
sketch8.AttachmentSupport = (doc.getObject("YZ_Plane"), [""])
sketch8.MapMode = "FlatFace"
sketch8.AttachmentOffset = App.Placement(Vector(0, 0, -7.135), App.Rotation())
sketch8.addGeometry(Part.Circle(Vector(5, -74.965, 0), Vector(0, 0, 1), 2.1), False)
sketch8.addGeometry(Part.Circle(Vector(5, 0.035, 0), Vector(0, 0, 1), 2.1), False)
sketch8.addGeometry(Part.Circle(Vector(5, -6.965, 0), Vector(0, 0, 1), 2.1), False)
sketch8.addGeometry(Part.Circle(Vector(5, -67.965, 0), Vector(0, 0, 1), 2.1), False)
sketch8.addConstraint(Sketcher.Constraint("Equal", 0, 1))
sketch8.addConstraint(Sketcher.Constraint("Equal", 1, 2))
sketch8.addConstraint(Sketcher.Constraint("Equal", 2, 3))
sketch8.addConstraint(Sketcher.Constraint("Vertical", 0, 3, 1, 3))
sketch8.addConstraint(Sketcher.Constraint("Vertical", 1, 3, 2, 3))
sketch8.addConstraint(Sketcher.Constraint("Vertical", 2, 3, 3, 3))
sketch8.addConstraint(Sketcher.Constraint("Diameter", 0, 4.2))
sketch8.addConstraint(Sketcher.Constraint("DistanceY", 2, 3, 1, 3, 7.0))
sketch8.addConstraint(Sketcher.Constraint("DistanceY", 0, 3, 3, 3, 7.0))
sketch8.addConstraint(Sketcher.Constraint("DistanceX", -1, 1, 0, 3, 5.0))
sketch8.addConstraint(Sketcher.Constraint("DistanceY", 0, 3, 1, 3, 75.0))
sketch8.addConstraint(Sketcher.Constraint("DistanceY", 0, 3, -1, 1, 74.965))
pocket6 = body.newObject("PartDesign::Pocket", "Pocket005")
pocket6.Profile = sketch8
pocket6.Length = 7.7
pocket6.Reversed = True

# Sketch on XY plane
sketch9 = body.newObject("Sketcher::SketchObject", "Sketch008")
sketch9.AttachmentSupport = (doc.getObject("XY_Plane"), [""])
sketch9.MapMode = "FlatFace"
sketch9.AttachmentOffset = App.Placement(Vector(0, 0, 11.335), App.Rotation())
sketch9.addGeometry(Part.Circle(Vector(5.365, 5, 0), Vector(0, 0, 1), 2.1), False)
sketch9.addGeometry(Part.Circle(Vector(80.365, 5, 0), Vector(0, 0, 1), 2.1), False)
sketch9.addGeometry(Part.Circle(Vector(73.365, 5, 0), Vector(0, 0, 1), 2.1), False)
sketch9.addGeometry(Part.Circle(Vector(12.365, 5, 0), Vector(0, 0, 1), 2.1), False)
sketch9.addConstraint(Sketcher.Constraint("Equal", 0, 1))
sketch9.addConstraint(Sketcher.Constraint("Equal", 1, 2))
sketch9.addConstraint(Sketcher.Constraint("Equal", 2, 3))
sketch9.addConstraint(Sketcher.Constraint("Horizontal", 0, 3, 1, 3))
sketch9.addConstraint(Sketcher.Constraint("Horizontal", 1, 3, 2, 3))
sketch9.addConstraint(Sketcher.Constraint("Horizontal", 2, 3, 3, 3))
sketch9.addConstraint(Sketcher.Constraint("Diameter", 0, 4.2))
sketch9.addConstraint(Sketcher.Constraint("DistanceX", 2, 3, 1, 3, 7.0))
sketch9.addConstraint(Sketcher.Constraint("DistanceX", 0, 3, 3, 3, 7.0))
sketch9.addConstraint(Sketcher.Constraint("DistanceY", -1, 1, 0, 3, 5.0))
sketch9.addConstraint(Sketcher.Constraint("DistanceX", 0, 3, 1, 3, 75.0))
sketch9.addConstraint(Sketcher.Constraint("DistanceX", -1, 1, 0, 3, 5.365))
pocket7 = body.newObject("PartDesign::Pocket", "Pocket006")
pocket7.Profile = sketch9
pocket7.Length = 6.5

doc.recompute()
